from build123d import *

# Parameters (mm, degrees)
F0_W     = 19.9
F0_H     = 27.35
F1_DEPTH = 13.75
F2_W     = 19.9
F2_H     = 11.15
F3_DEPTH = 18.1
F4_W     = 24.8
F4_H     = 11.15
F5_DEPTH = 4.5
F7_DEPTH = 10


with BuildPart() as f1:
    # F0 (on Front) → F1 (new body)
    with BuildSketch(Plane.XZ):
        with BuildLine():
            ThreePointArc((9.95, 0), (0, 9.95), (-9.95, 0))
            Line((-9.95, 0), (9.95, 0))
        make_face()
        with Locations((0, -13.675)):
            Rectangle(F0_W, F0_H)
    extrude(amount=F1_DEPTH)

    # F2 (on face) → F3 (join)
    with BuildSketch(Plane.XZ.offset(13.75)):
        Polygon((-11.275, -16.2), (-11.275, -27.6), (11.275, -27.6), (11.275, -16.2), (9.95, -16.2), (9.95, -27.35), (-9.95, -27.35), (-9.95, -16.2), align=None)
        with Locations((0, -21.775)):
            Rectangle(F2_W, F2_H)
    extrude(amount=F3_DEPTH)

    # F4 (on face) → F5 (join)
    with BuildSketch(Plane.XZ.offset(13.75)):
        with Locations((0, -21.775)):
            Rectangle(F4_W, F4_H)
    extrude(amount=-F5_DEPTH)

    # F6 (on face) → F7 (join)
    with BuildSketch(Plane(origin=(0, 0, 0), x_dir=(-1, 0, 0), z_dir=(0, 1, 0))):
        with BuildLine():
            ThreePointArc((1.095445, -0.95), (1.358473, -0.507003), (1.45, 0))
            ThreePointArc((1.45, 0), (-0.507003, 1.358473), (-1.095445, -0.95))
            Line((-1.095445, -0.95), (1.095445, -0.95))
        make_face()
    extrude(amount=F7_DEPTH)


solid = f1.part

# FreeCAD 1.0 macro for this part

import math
import FreeCAD as App
import Part
import Sketcher

doc = App.newDocument("Part")
params = doc.addObject("Spreadsheet::Sheet", "Params")
for row, (alias, value) in enumerate([
    ("sketch1_radius", "9.95 mm"),
    ("sketch1_height", "27.35 mm"),
    ("pad1_length", "13.75 mm"),
    ("sketch2_height", "11.4 mm"),
    ("sketch2_width", "22.55 mm"),
    ("pad2_length", "18.1 mm"),
    ("sketch3_width", "24.8 mm"),
    ("sketch3_height", "11.15 mm"),
    ("pad3_length", "4.5 mm"),
    ("sketch4_radius", "1.45 mm"),
    ("pad4_length", "10 mm"),
], start=1):
    params.set(f"A{row}", alias)
    params.set(f"B{row}", "=" + value)
    params.setAlias(f"B{row}", alias)

body = doc.addObject("PartDesign::Body", "Body")

# Sketch on XZ plane
sketch1 = doc.addObject("Sketcher::SketchObject", "Sketch")
body.addObject(sketch1)
sketch1.AttachmentSupport = (doc.XZ_Plane, [""])
sketch1.MapMode = "FlatFace"
sketch1.addGeometry([
    Part.ArcOfCircle(Part.Circle(App.Vector(0, 0, 0), App.Vector(0, 0, 1), 10), math.radians(0), math.radians(180)),
    Part.LineSegment(App.Vector(-10, 0, 0), App.Vector(-10, -27, 0)),
    Part.LineSegment(App.Vector(-10, -27, 0), App.Vector(10, -27, 0)),
    Part.LineSegment(App.Vector(10, -27, 0), App.Vector(10, 0, 0)),
], False)
sketch1.addConstraint([
    Sketcher.Constraint("Tangent", 0, 2, 1, 1),
    Sketcher.Constraint("Coincident", 1, 2, 2, 1),
    Sketcher.Constraint("Coincident", 2, 2, 3, 1),
    Sketcher.Constraint("Tangent", 3, 2, 0, 1),
    Sketcher.Constraint("Vertical", 1),
    Sketcher.Constraint("Horizontal", 2),
    Sketcher.Constraint("Vertical", 3),
    Sketcher.Constraint("Coincident", 0, 3, -1, 1),
    Sketcher.Constraint("Radius", 0, 9.95),
    Sketcher.Constraint("DistanceY", 1, 2, 1, 1, 27.35),
])
sketch1.setExpression("Constraints[8]", "Params.sketch1_radius")
sketch1.setExpression("Constraints[9]", "Params.sketch1_height")
pad1 = doc.addObject("PartDesign::Pad", "Pad")
body.addObject(pad1)
pad1.Profile = sketch1
pad1.setExpression("Length", "Params.pad1_length")

# Sketch on XZ plane
sketch2 = doc.addObject("Sketcher::SketchObject", "Sketch001")
body.addObject(sketch2)
sketch2.AttachmentSupport = (doc.XZ_Plane, [""])
sketch2.MapMode = "FlatFace"
sketch2.AttachmentOffset = App.Placement(App.Vector(0, 0, 13.75), App.Rotation())
sketch2.addGeometry([
    Part.LineSegment(App.Vector(-11, -16, 0), App.Vector(-11, -28, 0)),
    Part.LineSegment(App.Vector(-11, -28, 0), App.Vector(11, -28, 0)),
    Part.LineSegment(App.Vector(11, -28, 0), App.Vector(11, -16, 0)),
    Part.LineSegment(App.Vector(11, -16, 0), App.Vector(-11, -16, 0)),
], False)
sketch2.addConstraint([
    Sketcher.Constraint("Coincident", 0, 2, 1, 1),
    Sketcher.Constraint("Coincident", 1, 2, 2, 1),
    Sketcher.Constraint("Coincident", 2, 2, 3, 1),
    Sketcher.Constraint("Coincident", 3, 2, 0, 1),
    Sketcher.Constraint("Vertical", 0),
    Sketcher.Constraint("Horizontal", 1),
    Sketcher.Constraint("Vertical", 2),
    Sketcher.Constraint("Horizontal", 3),
    Sketcher.Constraint("DistanceY", 0, 2, 0, 1, 11.4),
    Sketcher.Constraint("DistanceX", 1, 1, 1, 2, 22.55),
    Sketcher.Constraint("DistanceY", 0, 2, -1, 1, 27.6),
    Sketcher.Constraint("DistanceX", 0, 2, -1, 1, 11.275),
])
sketch2.setExpression("Constraints[8]", "Params.sketch2_height")
sketch2.setExpression("Constraints[9]", "Params.sketch2_width")
pad2 = doc.addObject("PartDesign::Pad", "Pad001")
body.addObject(pad2)
pad2.Profile = sketch2
pad2.setExpression("Length", "Params.pad2_length")

# Sketch on XZ plane
sketch3 = doc.addObject("Sketcher::SketchObject", "Sketch002")
body.addObject(sketch3)
sketch3.AttachmentSupport = (doc.XZ_Plane, [""])
sketch3.MapMode = "FlatFace"
sketch3.AttachmentOffset = App.Placement(App.Vector(0, 0, 13.75), App.Rotation())
sketch3.addGeometry([
    Part.LineSegment(App.Vector(-12, -16, 0), App.Vector(-12, -27, 0)),
    Part.LineSegment(App.Vector(-12, -27, 0), App.Vector(12, -27, 0)),
    Part.LineSegment(App.Vector(12, -27, 0), App.Vector(12, -16, 0)),
    Part.LineSegment(App.Vector(12, -16, 0), App.Vector(-12, -16, 0)),
], False)
sketch3.addConstraint([
    Sketcher.Constraint("Coincident", 0, 2, 1, 1),
    Sketcher.Constraint("Coincident", 1, 2, 2, 1),
    Sketcher.Constraint("Coincident", 2, 2, 3, 1),
    Sketcher.Constraint("Coincident", 3, 2, 0, 1),
    Sketcher.Constraint("Vertical", 0),
    Sketcher.Constraint("Horizontal", 1),
    Sketcher.Constraint("Vertical", 2),
    Sketcher.Constraint("Horizontal", 3),
    Sketcher.Constraint("DistanceX", 1, 1, 1, 2, 24.8),
    Sketcher.Constraint("DistanceY", 0, 2, 0, 1, 11.15),
    Sketcher.Constraint("DistanceX", 0, 2, -1, 1, 12.4),
    Sketcher.Constraint("DistanceY", 2, 2, -1, 1, 16.2),
])
sketch3.setExpression("Constraints[8]", "Params.sketch3_width")
sketch3.setExpression("Constraints[9]", "Params.sketch3_height")
pad3 = doc.addObject("PartDesign::Pad", "Pad002")
body.addObject(pad3)
pad3.Profile = sketch3
pad3.setExpression("Length", "Params.pad3_length")
pad3.Reversed = True

# Sketch on XZ plane
sketch4 = doc.addObject("Sketcher::SketchObject", "Sketch003")
body.addObject(sketch4)
sketch4.AttachmentSupport = (doc.XZ_Plane, [""])
sketch4.MapMode = "FlatFace"
sketch4.addGeometry([
    Part.ArcOfCircle(Part.Circle(App.Vector(0, 0, 0), App.Vector(0, 0, 1), 1.4), math.radians(180), math.radians(221)),
    Part.ArcOfCircle(Part.Circle(App.Vector(0, 0, 0), App.Vector(0, 0, 1), 1.5), math.radians(-41), math.radians(180)),
    Part.LineSegment(App.Vector(1.1, -0.9, 0), App.Vector(-1.1, -0.9, 0)),
], False)
sketch4.addConstraint([
    Sketcher.Constraint("Tangent", 0, 1, 1, 2),
    Sketcher.Constraint("Coincident", 1, 1, 2, 1),
    Sketcher.Constraint("Coincident", 2, 2, 0, 2),
    Sketcher.Constraint("Horizontal", 2),
    Sketcher.Constraint("Coincident", 0, 3, -1, 1),
    Sketcher.Constraint("PointOnObject", 0, 1, -1),
    Sketcher.Constraint("Radius", 1, 1.45),
    Sketcher.Constraint("DistanceX", 0, 1, -1, 1, 1.45),
    Sketcher.Constraint("DistanceY", 1, 1, -1, 1, 0.95),
])
sketch4.setExpression("Constraints[6]", "Params.sketch4_radius")
pad4 = doc.addObject("PartDesign::Pad", "Pad003")
body.addObject(pad4)
pad4.Profile = sketch4
pad4.setExpression("Length", "Params.pad4_length")
pad4.Reversed = True

doc.recompute()
